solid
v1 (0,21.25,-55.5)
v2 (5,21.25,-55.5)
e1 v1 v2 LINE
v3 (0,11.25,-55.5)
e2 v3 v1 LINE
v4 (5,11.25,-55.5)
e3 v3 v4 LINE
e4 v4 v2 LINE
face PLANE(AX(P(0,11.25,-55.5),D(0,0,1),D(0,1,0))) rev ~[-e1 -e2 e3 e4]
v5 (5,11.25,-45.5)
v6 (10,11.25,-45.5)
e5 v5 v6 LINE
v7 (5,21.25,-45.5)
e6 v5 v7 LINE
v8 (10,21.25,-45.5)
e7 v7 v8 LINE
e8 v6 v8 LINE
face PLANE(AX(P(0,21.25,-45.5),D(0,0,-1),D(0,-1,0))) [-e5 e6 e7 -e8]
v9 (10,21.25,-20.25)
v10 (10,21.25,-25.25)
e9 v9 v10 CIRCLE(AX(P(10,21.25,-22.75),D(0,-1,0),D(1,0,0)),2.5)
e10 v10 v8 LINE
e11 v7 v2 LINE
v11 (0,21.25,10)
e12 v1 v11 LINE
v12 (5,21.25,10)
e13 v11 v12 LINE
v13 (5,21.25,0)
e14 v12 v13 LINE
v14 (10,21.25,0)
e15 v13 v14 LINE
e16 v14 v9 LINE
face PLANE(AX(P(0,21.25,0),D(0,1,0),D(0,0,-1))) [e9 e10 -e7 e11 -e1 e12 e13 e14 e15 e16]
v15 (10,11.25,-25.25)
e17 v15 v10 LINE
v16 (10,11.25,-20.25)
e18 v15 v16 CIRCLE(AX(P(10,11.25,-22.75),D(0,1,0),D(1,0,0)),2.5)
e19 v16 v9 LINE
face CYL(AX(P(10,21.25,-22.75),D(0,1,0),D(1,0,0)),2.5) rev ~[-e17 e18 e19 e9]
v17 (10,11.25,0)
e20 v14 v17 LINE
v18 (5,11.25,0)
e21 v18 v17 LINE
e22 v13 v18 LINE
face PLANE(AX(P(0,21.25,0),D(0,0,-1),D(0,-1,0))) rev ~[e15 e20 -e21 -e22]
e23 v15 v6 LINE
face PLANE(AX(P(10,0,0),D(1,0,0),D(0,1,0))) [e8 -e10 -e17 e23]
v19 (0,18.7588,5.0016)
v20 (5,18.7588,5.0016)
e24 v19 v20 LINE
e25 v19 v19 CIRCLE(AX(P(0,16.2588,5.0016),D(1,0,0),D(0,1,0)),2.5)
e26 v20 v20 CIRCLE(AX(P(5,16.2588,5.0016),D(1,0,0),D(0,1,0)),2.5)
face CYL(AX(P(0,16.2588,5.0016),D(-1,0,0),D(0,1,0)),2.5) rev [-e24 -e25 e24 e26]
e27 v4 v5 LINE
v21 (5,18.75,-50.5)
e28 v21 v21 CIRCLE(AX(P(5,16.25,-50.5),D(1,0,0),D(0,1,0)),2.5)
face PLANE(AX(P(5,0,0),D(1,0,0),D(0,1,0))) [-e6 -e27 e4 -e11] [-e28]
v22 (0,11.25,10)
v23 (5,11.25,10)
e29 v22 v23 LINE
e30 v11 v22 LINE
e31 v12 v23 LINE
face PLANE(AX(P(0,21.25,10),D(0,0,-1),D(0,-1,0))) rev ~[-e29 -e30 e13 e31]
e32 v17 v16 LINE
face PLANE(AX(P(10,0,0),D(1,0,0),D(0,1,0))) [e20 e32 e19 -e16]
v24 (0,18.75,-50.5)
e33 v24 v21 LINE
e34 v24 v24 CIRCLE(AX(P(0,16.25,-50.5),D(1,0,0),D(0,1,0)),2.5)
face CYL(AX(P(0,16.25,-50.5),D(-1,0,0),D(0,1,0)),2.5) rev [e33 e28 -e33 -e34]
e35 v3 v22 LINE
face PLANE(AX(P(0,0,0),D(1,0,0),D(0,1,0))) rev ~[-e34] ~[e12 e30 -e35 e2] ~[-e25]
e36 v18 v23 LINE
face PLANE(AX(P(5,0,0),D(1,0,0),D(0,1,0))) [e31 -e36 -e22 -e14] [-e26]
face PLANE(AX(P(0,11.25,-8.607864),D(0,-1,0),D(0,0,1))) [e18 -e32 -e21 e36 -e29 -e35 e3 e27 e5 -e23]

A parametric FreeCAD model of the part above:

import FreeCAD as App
import Part
import Sketcher
from FreeCAD import Vector
Q = App.Units.Quantity


def add_polygon(sketch, points):
    """Adds a closed chain of lines whose ends are joined by coincident constraints."""
    first, n = sketch.GeometryCount, len(points)
    for a, b in zip(points, points[1:] + points[:1]):
        sketch.addGeometry(Part.LineSegment(App.Vector(*a, 0), App.Vector(*b, 0)), False)
    for i in range(n):
        sketch.addConstraint(Sketcher.Constraint("Coincident", first + i, 2, first + (i + 1) % n, 1))

doc = App.newDocument("Part")
body = doc.addObject("PartDesign::Body", "Body")

sketch1 = body.newObject("Sketcher::SketchObject", "Sketch")
sketch1.AttachmentSupport = (doc.getObject("YZ_Plane"), [""])
sketch1.MapMode = "FlatFace"
add_polygon(sketch1, [(21, 0), (11, 0), (11, -46), (21, -46)])
sketch1.addConstraint(Sketcher.Constraint("Horizontal", 0))
sketch1.addConstraint(Sketcher.Constraint("Vertical", 1))
sketch1.addConstraint(Sketcher.Constraint("Horizontal", 2))
sketch1.addConstraint(Sketcher.Constraint("Vertical", 3))
sketch1.addConstraint(Sketcher.Constraint("PointOnObject", 0, 2, -1))
sketch1.addConstraint(Sketcher.Constraint("DistanceX", 0, 2, 0, 1, Q("10 mm")))
sketch1.addConstraint(Sketcher.Constraint("DistanceY", 1, 2, 1, 1, Q("45.5 mm")))
sketch1.addConstraint(Sketcher.Constraint("DistanceX", -1, 1, 0, 2, Q("11.25 mm")))
pad1 = body.newObject("PartDesign::Pad", "Pad")
pad1.Profile = sketch1
pad1.Length = 10

sketch2 = body.newObject("Sketcher::SketchObject", "Sketch001")
sketch2.AttachmentSupport = (doc.getObject("YZ_Plane"), [""])
sketch2.MapMode = "FlatFace"
add_polygon(sketch2, [(11.2, 0), (21.2, 0), (21.2, 10), (11.2, 10)])
sketch2.addGeometry(Part.Circle(Vector(16.3, 5, 0), Vector(0, 0, 1), 2.5), False)
add_polygon(sketch2, [(21.2, -45.5), (11.2, -45.5), (11.2, -55.5), (21.2, -55.5)])
sketch2.addGeometry(Part.Circle(Vector(16.2, -50.5, 0), Vector(0, 0, 1), 2.5), False)
sketch2.addConstraint(Sketcher.Constraint("Horizontal", 0))
sketch2.addConstraint(Sketcher.Constraint("Vertical", 1))
sketch2.addConstraint(Sketcher.Constraint("Horizontal", 2))
sketch2.addConstraint(Sketcher.Constraint("Vertical", 3))
sketch2.addConstraint(Sketcher.Constraint("Horizontal", 5))
sketch2.addConstraint(Sketcher.Constraint("Vertical", 6))
sketch2.addConstraint(Sketcher.Constraint("Horizontal", 7))
sketch2.addConstraint(Sketcher.Constraint("Vertical", 8))
sketch2.addConstraint(Sketcher.Constraint("Equal", 4, 9))
sketch2.addConstraint(Sketcher.Constraint("PointOnObject", 0, 2, -1))
sketch2.addConstraint(Sketcher.Constraint("Vertical", 3, 2, 5, 2))
sketch2.addConstraint(Sketcher.Constraint("Vertical", 1, 2, 7, 2))
sketch2.addConstraint(Sketcher.Constraint("Equal", 7, 1))
sketch2.addConstraint(Sketcher.Constraint("Equal", 3, 6))
sketch2.addConstraint(Sketcher.Constraint("Diameter", 4, Q("5 mm")))
sketch2.addConstraint(Sketcher.Constraint("DistanceX", 0, 1, 0, 2, Q("10 mm")))
sketch2.addConstraint(Sketcher.Constraint("DistanceX", 9, 3, 0, 2, Q("5 mm")))
sketch2.addConstraint(Sketcher.Constraint("DistanceY", 9, 3, 5, 2, Q("5 mm")))
sketch2.addConstraint(Sketcher.Constraint("DistanceY", 9, 3, -1, 1, Q("50.5 mm")))
sketch2.addConstraint(Sketcher.Constraint("DistanceX", -1, 1, 9, 3, Q("16.25 mm")))
sketch2.addConstraint(Sketcher.Constraint("DistanceX", -1, 1, 4, 3, Q("16.2588 mm")))
sketch2.addConstraint(Sketcher.Constraint("DistanceY", -1, 1, 4, 3, Q("5.0016 mm")))
pad2 = body.newObject("PartDesign::Pad", "Pad001")
pad2.Profile = sketch2
pad2.Length = 5

sketch3 = body.newObject("Sketcher::SketchObject", "Sketch002")
sketch3.AttachmentSupport = (doc.getObject("XZ_Plane"), [""])
sketch3.MapMode = "FlatFace"
sketch3.AttachmentOffset = App.Placement(Vector(0, 0, -21.25), App.Rotation())
sketch3.addGeometry(Part.Circle(Vector(10, -22.8, 0), Vector(0, 0, 1), 2.5), False)
sketch3.addConstraint(Sketcher.Constraint("Diameter", 0, Q("5 mm")))
sketch3.addConstraint(Sketcher.Constraint("DistanceX", -1, 1, 0, 3, Q("10 mm")))
sketch3.addConstraint(Sketcher.Constraint("DistanceY", 0, 3, -1, 1, Q("22.75 mm")))
pocket1 = body.newObject("PartDesign::Pocket", "Pocket")
pocket1.Profile = sketch3
pocket1.Length = 10
pocket1.Reversed = True

doc.recompute()
